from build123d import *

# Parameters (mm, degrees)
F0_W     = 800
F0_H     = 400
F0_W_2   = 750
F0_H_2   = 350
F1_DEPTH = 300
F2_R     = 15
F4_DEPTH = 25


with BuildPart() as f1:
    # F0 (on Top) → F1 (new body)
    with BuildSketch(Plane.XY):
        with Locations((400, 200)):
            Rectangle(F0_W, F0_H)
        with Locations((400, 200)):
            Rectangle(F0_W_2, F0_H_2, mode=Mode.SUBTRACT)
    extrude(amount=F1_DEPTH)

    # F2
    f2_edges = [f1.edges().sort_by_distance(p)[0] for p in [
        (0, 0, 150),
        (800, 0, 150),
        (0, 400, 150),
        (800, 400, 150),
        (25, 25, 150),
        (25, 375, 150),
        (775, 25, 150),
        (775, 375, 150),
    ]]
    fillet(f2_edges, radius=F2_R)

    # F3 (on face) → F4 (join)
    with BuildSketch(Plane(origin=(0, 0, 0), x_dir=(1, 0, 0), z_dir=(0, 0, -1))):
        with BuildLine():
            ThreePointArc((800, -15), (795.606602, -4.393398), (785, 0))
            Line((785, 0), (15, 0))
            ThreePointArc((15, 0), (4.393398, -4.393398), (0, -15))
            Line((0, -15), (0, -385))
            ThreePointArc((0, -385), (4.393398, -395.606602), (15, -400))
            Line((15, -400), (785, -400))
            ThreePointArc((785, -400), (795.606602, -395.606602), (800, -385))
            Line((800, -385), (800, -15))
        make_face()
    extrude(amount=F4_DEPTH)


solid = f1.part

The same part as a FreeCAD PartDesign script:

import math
import FreeCAD as App
import Part
import Sketcher

V = App.Vector
Q = App.Units.Quantity


def edges_at(feature, points):
    """Names of the edges that pass closest to the given points."""
    edges = feature.Shape.Edges
    near = lambda p: min(range(len(edges)), key=lambda i: edges[i].distToShape(Part.Vertex(*p))[0])
    return sorted({f"Edge{near(p) + 1}" for p in points})


def add_polygon(sketch, points):
    """Adds a closed chain of lines whose ends are joined by coincident constraints."""
    first, n = sketch.GeometryCount, len(points)
    for a, b in zip(points, points[1:] + points[:1]):
        sketch.addGeometry(Part.LineSegment(App.Vector(*a, 0), App.Vector(*b, 0)), False)
    for i in range(n):
        sketch.addConstraint(Sketcher.Constraint("Coincident", first + i, 2, first + (i + 1) % n, 1))

doc = App.newDocument("Part")
body = doc.addObject("PartDesign::Body", "Body")

# Sketch on XY plane
sketch1 = body.newObject("Sketcher::SketchObject", "Sketch")
sketch1.AttachmentSupport = (doc.getObject("XY_Plane"), [""])
sketch1.MapMode = "FlatFace"
add_polygon(sketch1, [(0, 400), (0, 0), (800, 0), (800, 400)])  # lines 0-3
add_polygon(sketch1, [(775, 25), (25, 25), (25, 375), (775, 375)])  # lines 4-7
sketch1.addConstraint(Sketcher.Constraint("Vertical", 0))
sketch1.addConstraint(Sketcher.Constraint("Horizontal", 1))
sketch1.addConstraint(Sketcher.Constraint("Vertical", 2))
sketch1.addConstraint(Sketcher.Constraint("Horizontal", 3))
sketch1.addConstraint(Sketcher.Constraint("Horizontal", 4))
sketch1.addConstraint(Sketcher.Constraint("Vertical", 5))
sketch1.addConstraint(Sketcher.Constraint("Horizontal", 6))
sketch1.addConstraint(Sketcher.Constraint("Vertical", 7))
sketch1.addConstraint(Sketcher.Constraint("Coincident", 0, 2, -1, 1))
sketch1.addConstraint(Sketcher.Constraint("DistanceX", 1, 1, 1, 2, Q("800 mm")))
sketch1.addConstraint(Sketcher.Constraint("DistanceX", 4, 2, 4, 1, Q("750 mm")))
sketch1.addConstraint(Sketcher.Constraint("DistanceY", 0, 2, 0, 1, Q("400 mm")))
sketch1.addConstraint(Sketcher.Constraint("DistanceY", 5, 1, 5, 2, Q("350 mm")))
sketch1.addConstraint(Sketcher.Constraint("DistanceX", -1, 1, 4, 2, Q("25 mm")))
sketch1.addConstraint(Sketcher.Constraint("DistanceY", -1, 1, 4, 2, Q("25 mm")))
pad1 = body.newObject("PartDesign::Pad", "Pad")
pad1.Profile = sketch1
pad1.Length = 300
doc.recompute()

fillet = body.newObject("PartDesign::Fillet", "Fillet")
fillet.Base = (pad1, edges_at(pad1, [
    (0, 0, 150),
    (800, 0, 150),
    (0, 400, 150),
    (800, 400, 150),
    (25, 25, 150),
    (25, 375, 150),
    (775, 25, 150),
    (775, 375, 150),
]))
fillet.Radius = 15

# Sketch on XY plane
sketch2 = body.newObject("Sketcher::SketchObject", "Sketch001")
sketch2.AttachmentSupport = (doc.getObject("XY_Plane"), [""])
sketch2.MapMode = "FlatFace"
sketch2.addGeometry(Part.ArcOfCircle(Part.Circle(V(785, 15, 0), V(0, 0, 1), 15), math.radians(-90), math.radians(0)), False)
sketch2.addGeometry(Part.LineSegment(V(785, 0, 0), V(15, 0, 0)), False)
sketch2.addGeometry(Part.ArcOfCircle(Part.Circle(V(15, 15, 0), V(0, 0, 1), 15), math.radians(180), math.radians(270)), False)
sketch2.addGeometry(Part.LineSegment(V(0, 15, 0), V(0, 385, 0)), False)
sketch2.addGeometry(Part.ArcOfCircle(Part.Circle(V(15, 385, 0), V(0, 0, 1), 15), math.radians(90), math.radians(180)), False)
sketch2.addGeometry(Part.LineSegment(V(15, 400, 0), V(785, 400, 0)), False)
sketch2.addGeometry(Part.ArcOfCircle(Part.Circle(V(785, 385, 0), V(0, 0, 1), 15), math.radians(0), math.radians(90)), False)
sketch2.addGeometry(Part.LineSegment(V(800, 385, 0), V(800, 15, 0)), False)
sketch2.addConstraint(Sketcher.Constraint("Tangent", 0, 1, 1, 1))
sketch2.addConstraint(Sketcher.Constraint("Tangent", 1, 2, 2, 2))
sketch2.addConstraint(Sketcher.Constraint("Tangent", 2, 1, 3, 1))
sketch2.addConstraint(Sketcher.Constraint("Tangent", 3, 2, 4, 2))
sketch2.addConstraint(Sketcher.Constraint("Tangent", 4, 1, 5, 1))
sketch2.addConstraint(Sketcher.Constraint("Tangent", 5, 2, 6, 2))
sketch2.addConstraint(Sketcher.Constraint("Tangent", 6, 1, 7, 1))
sketch2.addConstraint(Sketcher.Constraint("Tangent", 7, 2, 0, 2))
sketch2.addConstraint(Sketcher.Constraint("Horizontal", 1))
sketch2.addConstraint(Sketcher.Constraint("Vertical", 3))
sketch2.addConstraint(Sketcher.Constraint("Horizontal", 5))
sketch2.addConstraint(Sketcher.Constraint("Vertical", 7))
sketch2.addConstraint(Sketcher.Constraint("Equal", 0, 2))
sketch2.addConstraint(Sketcher.Constraint("Equal", 2, 4))
sketch2.addConstraint(Sketcher.Constraint("Equal", 4, 6))
sketch2.addConstraint(Sketcher.Constraint("PointOnObject", 0, 1, -1))
sketch2.addConstraint(Sketcher.Constraint("PointOnObject", 2, 1, -2))
sketch2.addConstraint(Sketcher.Constraint("Radius", 0, Q("14.999999 mm")))
sketch2.addConstraint(Sketcher.Constraint("DistanceX", 1, 2, 1, 1, Q("770 mm")))
sketch2.addConstraint(Sketcher.Constraint("DistanceY", 3, 1, 3, 2, Q("370 mm")))
pad2 = body.newObject("PartDesign::Pad", "Pad001")
pad2.Profile = sketch2
pad2.Length = 25
pad2.Reversed = True

doc.recompute()
